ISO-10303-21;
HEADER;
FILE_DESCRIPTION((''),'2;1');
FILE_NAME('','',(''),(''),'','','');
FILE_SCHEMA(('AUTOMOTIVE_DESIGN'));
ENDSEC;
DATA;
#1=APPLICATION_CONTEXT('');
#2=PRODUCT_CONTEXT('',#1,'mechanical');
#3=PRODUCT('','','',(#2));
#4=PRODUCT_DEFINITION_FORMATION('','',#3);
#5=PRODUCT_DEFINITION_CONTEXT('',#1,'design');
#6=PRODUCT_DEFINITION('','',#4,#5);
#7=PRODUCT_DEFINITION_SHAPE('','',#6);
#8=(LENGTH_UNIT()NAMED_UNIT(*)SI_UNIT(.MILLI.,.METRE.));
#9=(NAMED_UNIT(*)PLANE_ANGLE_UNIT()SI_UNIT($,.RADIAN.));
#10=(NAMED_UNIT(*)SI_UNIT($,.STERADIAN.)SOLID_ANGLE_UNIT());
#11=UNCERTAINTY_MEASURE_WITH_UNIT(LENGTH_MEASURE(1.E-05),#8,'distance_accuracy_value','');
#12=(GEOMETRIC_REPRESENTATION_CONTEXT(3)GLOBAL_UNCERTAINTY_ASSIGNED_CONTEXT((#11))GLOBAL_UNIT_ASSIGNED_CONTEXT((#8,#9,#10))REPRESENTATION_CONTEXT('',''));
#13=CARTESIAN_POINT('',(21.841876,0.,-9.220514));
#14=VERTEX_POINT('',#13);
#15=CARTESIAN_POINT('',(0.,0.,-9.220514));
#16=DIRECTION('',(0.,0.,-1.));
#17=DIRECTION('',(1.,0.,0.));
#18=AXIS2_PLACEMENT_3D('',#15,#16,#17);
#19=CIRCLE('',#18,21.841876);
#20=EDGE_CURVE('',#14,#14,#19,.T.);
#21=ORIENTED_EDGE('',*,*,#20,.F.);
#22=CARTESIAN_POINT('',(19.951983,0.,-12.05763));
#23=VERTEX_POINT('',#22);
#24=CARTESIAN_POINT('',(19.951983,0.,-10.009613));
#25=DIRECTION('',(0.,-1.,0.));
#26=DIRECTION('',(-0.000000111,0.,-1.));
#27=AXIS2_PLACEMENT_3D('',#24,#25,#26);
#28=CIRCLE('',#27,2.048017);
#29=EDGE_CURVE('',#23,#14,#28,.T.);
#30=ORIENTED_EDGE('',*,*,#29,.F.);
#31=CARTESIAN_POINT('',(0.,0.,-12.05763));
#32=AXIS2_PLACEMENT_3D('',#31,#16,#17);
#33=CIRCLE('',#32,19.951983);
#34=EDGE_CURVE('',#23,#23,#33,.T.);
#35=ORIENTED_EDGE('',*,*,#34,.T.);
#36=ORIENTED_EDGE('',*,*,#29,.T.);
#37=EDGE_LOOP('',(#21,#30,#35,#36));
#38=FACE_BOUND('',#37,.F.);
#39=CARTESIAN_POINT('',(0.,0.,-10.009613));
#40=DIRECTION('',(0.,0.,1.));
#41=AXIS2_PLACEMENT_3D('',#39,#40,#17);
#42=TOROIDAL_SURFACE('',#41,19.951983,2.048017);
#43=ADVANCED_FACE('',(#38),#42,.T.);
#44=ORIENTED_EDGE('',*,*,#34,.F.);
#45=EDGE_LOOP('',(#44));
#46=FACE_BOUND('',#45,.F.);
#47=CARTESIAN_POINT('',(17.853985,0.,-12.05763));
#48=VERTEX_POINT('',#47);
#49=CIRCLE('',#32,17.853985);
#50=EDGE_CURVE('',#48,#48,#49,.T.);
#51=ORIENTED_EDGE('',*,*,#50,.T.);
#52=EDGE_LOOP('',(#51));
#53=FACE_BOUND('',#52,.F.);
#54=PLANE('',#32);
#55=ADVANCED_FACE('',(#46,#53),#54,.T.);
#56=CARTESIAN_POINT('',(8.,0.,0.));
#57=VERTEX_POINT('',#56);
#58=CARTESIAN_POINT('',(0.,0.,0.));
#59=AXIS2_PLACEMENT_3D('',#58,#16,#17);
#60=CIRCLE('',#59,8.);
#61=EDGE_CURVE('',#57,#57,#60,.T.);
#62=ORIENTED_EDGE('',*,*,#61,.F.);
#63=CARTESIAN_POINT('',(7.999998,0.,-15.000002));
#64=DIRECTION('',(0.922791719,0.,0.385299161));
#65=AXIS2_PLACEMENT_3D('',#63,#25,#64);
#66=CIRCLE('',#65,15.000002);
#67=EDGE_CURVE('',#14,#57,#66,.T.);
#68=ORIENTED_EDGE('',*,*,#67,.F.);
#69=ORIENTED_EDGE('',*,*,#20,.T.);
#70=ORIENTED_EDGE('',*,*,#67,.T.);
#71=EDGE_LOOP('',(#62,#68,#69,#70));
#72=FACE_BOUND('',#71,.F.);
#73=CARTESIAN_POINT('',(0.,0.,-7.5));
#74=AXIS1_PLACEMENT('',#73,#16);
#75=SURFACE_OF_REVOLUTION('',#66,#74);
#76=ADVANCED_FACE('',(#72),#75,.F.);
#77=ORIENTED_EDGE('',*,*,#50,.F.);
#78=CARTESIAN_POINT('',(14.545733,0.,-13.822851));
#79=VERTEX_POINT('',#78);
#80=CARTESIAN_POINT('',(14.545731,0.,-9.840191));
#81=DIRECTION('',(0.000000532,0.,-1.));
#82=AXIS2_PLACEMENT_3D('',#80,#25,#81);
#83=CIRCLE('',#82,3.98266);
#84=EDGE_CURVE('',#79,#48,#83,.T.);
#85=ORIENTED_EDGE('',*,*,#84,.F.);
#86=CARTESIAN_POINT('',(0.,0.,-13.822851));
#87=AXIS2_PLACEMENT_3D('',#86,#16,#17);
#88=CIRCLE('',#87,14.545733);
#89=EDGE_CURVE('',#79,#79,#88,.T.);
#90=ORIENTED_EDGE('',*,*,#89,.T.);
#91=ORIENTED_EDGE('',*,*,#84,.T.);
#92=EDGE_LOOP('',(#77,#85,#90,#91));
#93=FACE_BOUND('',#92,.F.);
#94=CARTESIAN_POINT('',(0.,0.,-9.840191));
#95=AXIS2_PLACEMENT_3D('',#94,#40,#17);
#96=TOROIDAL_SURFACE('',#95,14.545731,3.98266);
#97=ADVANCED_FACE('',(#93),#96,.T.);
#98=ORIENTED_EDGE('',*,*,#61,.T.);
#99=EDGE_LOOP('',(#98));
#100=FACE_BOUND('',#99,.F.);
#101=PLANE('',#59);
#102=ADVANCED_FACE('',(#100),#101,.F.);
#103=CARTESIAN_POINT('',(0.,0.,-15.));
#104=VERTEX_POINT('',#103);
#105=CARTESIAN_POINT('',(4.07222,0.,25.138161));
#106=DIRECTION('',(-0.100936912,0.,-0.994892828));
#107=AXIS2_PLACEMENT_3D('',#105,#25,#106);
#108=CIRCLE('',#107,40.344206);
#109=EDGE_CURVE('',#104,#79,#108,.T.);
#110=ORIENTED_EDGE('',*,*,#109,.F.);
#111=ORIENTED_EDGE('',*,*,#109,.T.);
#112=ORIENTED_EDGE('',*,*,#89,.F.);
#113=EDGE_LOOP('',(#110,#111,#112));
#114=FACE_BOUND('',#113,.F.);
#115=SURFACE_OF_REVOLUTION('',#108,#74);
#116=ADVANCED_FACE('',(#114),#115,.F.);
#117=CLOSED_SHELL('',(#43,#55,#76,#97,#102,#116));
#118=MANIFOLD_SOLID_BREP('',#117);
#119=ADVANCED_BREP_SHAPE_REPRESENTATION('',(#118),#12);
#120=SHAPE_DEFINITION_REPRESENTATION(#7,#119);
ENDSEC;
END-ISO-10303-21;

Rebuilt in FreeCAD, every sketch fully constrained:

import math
import FreeCAD as App
import Part
import Sketcher
from FreeCAD import Vector

doc = App.newDocument("Part")
body = doc.addObject("PartDesign::Body", "Body")

# Sketch on XZ plane
sketch1 = body.newObject("Sketcher::SketchObject", "Sketch")
sketch1.AttachmentSupport = (doc.getObject("XZ_Plane"), [""])
sketch1.MapMode = "FlatFace"
sketch1.addGeometry([
    Part.LineSegment(Vector(8, 0, 0), Vector(0, 0, 0)),  # 0
    Part.LineSegment(Vector(0, 0, 0), Vector(0, -15, 0)),  # 1
    Part.ArcOfCircle(Part.Circle(Vector(4.1, 25.1, 0), Vector(0, 0, 1), 40.3), math.radians(-96), math.radians(-75)),  # 2
    Part.ArcOfCircle(Part.Circle(Vector(14.5, -9.8, 0), Vector(0, 0, 1), 4), math.radians(-90), math.radians(-34)),  # 3
    Part.LineSegment(Vector(17.9, -12.1, 0), Vector(20, -12.1, 0)),  # 4
    Part.ArcOfCircle(Part.Circle(Vector(20, -10, 0), Vector(0, 0, 1), 2), math.radians(-90), math.radians(23)),  # 5
    Part.ArcOfCircle(Part.Circle(Vector(8, -15, 0), Vector(0, 0, 1), 15), math.radians(23), math.radians(90)),  # 6
], False)
sketch1.addConstraint([
    Sketcher.Constraint("Coincident", 0, 2, 1, 1),
    Sketcher.Constraint("Coincident", 1, 2, 2, 1),
    Sketcher.Constraint("Coincident", 2, 2, 3, 1),
    Sketcher.Constraint("Coincident", 3, 2, 4, 1),
    Sketcher.Constraint("Tangent", 4, 2, 5, 1),
    Sketcher.Constraint("Tangent", 5, 2, 6, 1),
    Sketcher.Constraint("Tangent", 6, 2, 0, 1),
    Sketcher.Constraint("Horizontal", 0),
    Sketcher.Constraint("Vertical", 1),
    Sketcher.Constraint("Horizontal", 4),
    Sketcher.Constraint("Coincident", 0, 2, -1, 1),
    Sketcher.Constraint("DistanceX", 0, 2, 0, 1, 8.0),
    Sketcher.Constraint("DistanceY", 1, 2, 1, 1, 15.0),
    Sketcher.Constraint("Radius", 3, 3.98266),
    Sketcher.Constraint("Radius", 2, 40.344206),
    Sketcher.Constraint("Radius", 5, 2.048017),
    Sketcher.Constraint("Radius", 6, 15.000002),
    Sketcher.Constraint("DistanceX", 3, 2, 5, 3, 2.097998),
    Sketcher.Constraint("DistanceY", 5, 3, 5, 2, 0.789099),
    Sketcher.Constraint("DistanceX", -1, 1, 2, 3, 4.07222),
    Sketcher.Constraint("DistanceX", -1, 1, 3, 3, 14.545731),
])
revolution = body.newObject("PartDesign::Revolution", "Revolution")
revolution.Profile = sketch1
revolution.ReferenceAxis = (sketch1, ["V_Axis"])
revolution.Angle = 360

doc.recompute()
